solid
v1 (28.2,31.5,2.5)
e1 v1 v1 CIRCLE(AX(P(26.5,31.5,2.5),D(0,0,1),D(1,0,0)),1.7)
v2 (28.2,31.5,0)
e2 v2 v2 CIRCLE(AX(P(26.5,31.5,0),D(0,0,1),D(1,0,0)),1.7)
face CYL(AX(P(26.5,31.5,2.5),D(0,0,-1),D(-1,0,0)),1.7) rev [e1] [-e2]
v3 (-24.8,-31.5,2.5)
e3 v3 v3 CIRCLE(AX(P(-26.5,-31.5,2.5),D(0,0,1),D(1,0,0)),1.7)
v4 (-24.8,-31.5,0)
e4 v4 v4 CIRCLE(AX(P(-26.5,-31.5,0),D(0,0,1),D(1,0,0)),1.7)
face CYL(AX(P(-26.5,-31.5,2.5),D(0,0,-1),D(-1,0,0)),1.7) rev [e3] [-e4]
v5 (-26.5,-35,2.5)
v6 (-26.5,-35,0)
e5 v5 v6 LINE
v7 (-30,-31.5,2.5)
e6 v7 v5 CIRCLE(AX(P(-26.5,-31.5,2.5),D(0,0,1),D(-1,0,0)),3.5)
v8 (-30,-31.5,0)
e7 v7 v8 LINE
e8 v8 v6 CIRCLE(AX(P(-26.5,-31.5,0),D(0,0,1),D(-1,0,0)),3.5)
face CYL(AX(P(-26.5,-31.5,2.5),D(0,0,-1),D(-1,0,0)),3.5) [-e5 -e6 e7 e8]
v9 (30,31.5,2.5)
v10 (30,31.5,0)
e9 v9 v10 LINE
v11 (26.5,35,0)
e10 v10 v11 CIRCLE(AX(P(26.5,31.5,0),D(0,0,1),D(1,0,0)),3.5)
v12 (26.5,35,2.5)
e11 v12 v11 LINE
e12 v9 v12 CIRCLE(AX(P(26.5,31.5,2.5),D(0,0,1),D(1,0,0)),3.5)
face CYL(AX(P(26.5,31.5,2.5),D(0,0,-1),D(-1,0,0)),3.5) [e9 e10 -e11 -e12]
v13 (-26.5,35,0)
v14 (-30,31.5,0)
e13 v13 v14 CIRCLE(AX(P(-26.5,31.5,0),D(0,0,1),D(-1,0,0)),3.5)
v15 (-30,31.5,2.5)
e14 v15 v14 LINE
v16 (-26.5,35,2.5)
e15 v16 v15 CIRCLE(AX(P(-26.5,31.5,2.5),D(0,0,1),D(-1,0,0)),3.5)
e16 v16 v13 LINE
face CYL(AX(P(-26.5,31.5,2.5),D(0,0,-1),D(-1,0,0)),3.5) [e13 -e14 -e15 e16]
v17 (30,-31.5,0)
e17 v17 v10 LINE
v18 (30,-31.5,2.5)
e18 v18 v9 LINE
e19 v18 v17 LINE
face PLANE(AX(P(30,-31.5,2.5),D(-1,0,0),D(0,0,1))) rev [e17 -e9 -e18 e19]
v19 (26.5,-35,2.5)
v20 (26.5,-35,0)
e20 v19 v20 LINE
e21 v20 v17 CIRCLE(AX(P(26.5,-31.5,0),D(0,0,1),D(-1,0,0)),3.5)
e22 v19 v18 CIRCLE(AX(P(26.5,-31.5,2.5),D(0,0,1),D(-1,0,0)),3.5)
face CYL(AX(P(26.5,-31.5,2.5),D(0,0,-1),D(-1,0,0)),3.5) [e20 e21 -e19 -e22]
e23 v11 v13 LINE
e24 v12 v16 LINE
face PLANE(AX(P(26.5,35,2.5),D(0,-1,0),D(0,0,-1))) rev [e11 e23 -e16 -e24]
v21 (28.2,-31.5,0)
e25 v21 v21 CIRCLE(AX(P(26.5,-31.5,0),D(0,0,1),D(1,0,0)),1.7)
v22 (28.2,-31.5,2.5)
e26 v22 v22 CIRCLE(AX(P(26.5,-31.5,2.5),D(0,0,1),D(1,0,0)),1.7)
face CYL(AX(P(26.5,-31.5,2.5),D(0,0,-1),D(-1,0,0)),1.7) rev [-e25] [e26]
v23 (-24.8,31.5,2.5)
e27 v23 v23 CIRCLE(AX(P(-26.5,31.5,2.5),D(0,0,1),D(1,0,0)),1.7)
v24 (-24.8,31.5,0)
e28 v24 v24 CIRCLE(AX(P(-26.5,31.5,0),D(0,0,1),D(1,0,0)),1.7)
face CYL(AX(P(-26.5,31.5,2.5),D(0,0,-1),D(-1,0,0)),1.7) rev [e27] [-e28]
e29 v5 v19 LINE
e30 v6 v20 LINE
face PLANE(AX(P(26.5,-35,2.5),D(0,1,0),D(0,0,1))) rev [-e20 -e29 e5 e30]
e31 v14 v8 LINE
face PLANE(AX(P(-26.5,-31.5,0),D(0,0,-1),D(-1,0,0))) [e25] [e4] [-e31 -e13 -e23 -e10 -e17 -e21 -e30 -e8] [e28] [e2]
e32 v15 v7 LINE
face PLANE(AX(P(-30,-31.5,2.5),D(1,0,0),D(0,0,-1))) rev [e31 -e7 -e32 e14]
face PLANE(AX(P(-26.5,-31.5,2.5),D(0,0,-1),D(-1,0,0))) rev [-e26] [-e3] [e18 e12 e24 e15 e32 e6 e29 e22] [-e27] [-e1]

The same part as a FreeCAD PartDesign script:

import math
import FreeCAD as App
import Part
import Sketcher
from FreeCAD import Vector

doc = App.newDocument("Part")
body = doc.addObject("PartDesign::Body", "Body")

# Sketch on XY plane
sketch1 = body.newObject("Sketcher::SketchObject", "Sketch")
sketch1.AttachmentSupport = (doc.getObject("XY_Plane"), [""])
sketch1.MapMode = "FlatFace"
sketch1.addGeometry([
    Part.LineSegment(Vector(30, -31.5, 0), Vector(30, 31.5, 0)),  # 0
    Part.ArcOfCircle(Part.Circle(Vector(26.5, 31.5, 0), Vector(0, 0, 1), 3.5), math.radians(0), math.radians(90)),  # 1
    Part.LineSegment(Vector(26.5, 35, 0), Vector(-26.5, 35, 0)),  # 2
    Part.ArcOfCircle(Part.Circle(Vector(-26.5, 31.5, 0), Vector(0, 0, 1), 3.5), math.radians(90), math.radians(180)),  # 3
    Part.LineSegment(Vector(-30, 31.5, 0), Vector(-30, -31.5, 0)),  # 4
    Part.ArcOfCircle(Part.Circle(Vector(-26.5, -31.5, 0), Vector(0, 0, 1), 3.5), math.radians(-180), math.radians(-90)),  # 5
    Part.LineSegment(Vector(-26.5, -35, 0), Vector(26.5, -35, 0)),  # 6
    Part.ArcOfCircle(Part.Circle(Vector(26.5, -31.5, 0), Vector(0, 0, 1), 3.5), math.radians(-90), math.radians(0)),  # 7
    Part.Circle(Vector(26.5, -31.5, 0), Vector(0, 0, 1), 1.7),  # 8
    Part.Circle(Vector(26.5, 31.5, 0), Vector(0, 0, 1), 1.7),  # 9
    Part.Circle(Vector(-26.5, -31.5, 0), Vector(0, 0, 1), 1.7),  # 10
    Part.Circle(Vector(-26.5, 31.5, 0), Vector(0, 0, 1), 1.7),  # 11
], False)
sketch1.addConstraint([
    Sketcher.Constraint("Tangent", 0, 2, 1, 1),
    Sketcher.Constraint("Tangent", 1, 2, 2, 1),
    Sketcher.Constraint("Tangent", 2, 2, 3, 1),
    Sketcher.Constraint("Tangent", 3, 2, 4, 1),
    Sketcher.Constraint("Tangent", 4, 2, 5, 1),
    Sketcher.Constraint("Tangent", 5, 2, 6, 1),
    Sketcher.Constraint("Tangent", 6, 2, 7, 1),
    Sketcher.Constraint("Tangent", 7, 2, 0, 1),
    Sketcher.Constraint("Vertical", 0),
    Sketcher.Constraint("Horizontal", 2),
    Sketcher.Constraint("Vertical", 4),
    Sketcher.Constraint("Horizontal", 6),
    Sketcher.Constraint("Coincident", 8, 3, 7, 3),
    Sketcher.Constraint("Coincident", 9, 3, 1, 3),
    Sketcher.Constraint("Coincident", 10, 3, 5, 3),
    Sketcher.Constraint("Coincident", 11, 3, 3, 3),
    Sketcher.Constraint("Equal", 1, 3),
    Sketcher.Constraint("Equal", 3, 5),
    Sketcher.Constraint("Equal", 5, 7),
    Sketcher.Constraint("Equal", 8, 9),
    Sketcher.Constraint("Equal", 9, 10),
    Sketcher.Constraint("Equal", 10, 11),
    Sketcher.Constraint("Symmetric", 1, 3, 5, 3, -1, 1),
    Sketcher.Constraint("Diameter", 8, 3.4),
    Sketcher.Constraint("Radius", 1, 3.5),
    Sketcher.Constraint("DistanceX", 2, 2, 2, 1, 53.0),
    Sketcher.Constraint("DistanceY", 0, 1, 0, 2, 63.0),
])
pad1 = body.newObject("PartDesign::Pad", "Pad")
pad1.Profile = sketch1
pad1.Length = 2.5

doc.recompute()
